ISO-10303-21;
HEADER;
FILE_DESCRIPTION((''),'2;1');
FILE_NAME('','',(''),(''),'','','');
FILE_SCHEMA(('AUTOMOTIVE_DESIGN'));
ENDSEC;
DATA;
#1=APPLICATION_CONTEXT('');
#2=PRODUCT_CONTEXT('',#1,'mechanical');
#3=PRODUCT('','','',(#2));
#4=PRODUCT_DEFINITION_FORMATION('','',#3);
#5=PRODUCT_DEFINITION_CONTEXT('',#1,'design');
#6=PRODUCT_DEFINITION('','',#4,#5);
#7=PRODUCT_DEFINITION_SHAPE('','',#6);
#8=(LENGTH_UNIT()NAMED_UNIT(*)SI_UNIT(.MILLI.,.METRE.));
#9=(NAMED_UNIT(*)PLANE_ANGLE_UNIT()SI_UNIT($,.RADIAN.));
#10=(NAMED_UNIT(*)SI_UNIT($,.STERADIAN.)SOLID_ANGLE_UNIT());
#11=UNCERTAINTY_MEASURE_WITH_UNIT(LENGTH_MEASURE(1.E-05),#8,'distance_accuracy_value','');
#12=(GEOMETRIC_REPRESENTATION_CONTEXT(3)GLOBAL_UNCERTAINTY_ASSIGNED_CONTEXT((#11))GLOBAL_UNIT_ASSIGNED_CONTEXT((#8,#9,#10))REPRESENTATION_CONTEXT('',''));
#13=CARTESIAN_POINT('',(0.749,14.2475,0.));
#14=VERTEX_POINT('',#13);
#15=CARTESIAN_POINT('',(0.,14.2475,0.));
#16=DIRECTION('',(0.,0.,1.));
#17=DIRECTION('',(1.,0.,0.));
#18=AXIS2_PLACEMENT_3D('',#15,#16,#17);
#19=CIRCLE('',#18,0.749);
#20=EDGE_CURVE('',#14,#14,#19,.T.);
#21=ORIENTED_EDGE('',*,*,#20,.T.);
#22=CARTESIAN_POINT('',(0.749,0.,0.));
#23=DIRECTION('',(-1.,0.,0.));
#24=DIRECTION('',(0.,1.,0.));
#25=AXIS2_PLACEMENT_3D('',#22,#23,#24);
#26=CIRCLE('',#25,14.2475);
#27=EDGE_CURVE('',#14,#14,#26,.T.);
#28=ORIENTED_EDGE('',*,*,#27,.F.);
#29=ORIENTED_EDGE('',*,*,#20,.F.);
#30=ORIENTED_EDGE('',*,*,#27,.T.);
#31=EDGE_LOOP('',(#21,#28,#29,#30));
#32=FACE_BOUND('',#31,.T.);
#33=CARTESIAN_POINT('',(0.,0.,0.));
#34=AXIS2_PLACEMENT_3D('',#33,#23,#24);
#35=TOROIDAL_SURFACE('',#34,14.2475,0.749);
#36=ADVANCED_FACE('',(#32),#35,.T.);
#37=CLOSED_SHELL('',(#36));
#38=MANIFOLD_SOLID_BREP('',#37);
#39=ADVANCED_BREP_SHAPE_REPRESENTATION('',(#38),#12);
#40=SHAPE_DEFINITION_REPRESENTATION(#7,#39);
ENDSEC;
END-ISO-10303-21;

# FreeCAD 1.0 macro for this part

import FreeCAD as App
import Part
import Sketcher
from FreeCAD import Vector
Q = App.Units.Quantity

doc = App.newDocument("Part")
body = doc.addObject("PartDesign::Body", "Body")

sketch1 = body.newObject("Sketcher::SketchObject", "Sketch")
sketch1.AttachmentSupport = (doc.getObject("XY_Plane"), [""])
sketch1.MapMode = "FlatFace"
sketch1.addGeometry(Part.Circle(Vector(0, 14.2, 0), Vector(0, 0, 1), 0.7), False)
sketch1.addConstraint(Sketcher.Constraint("PointOnObject", 0, 3, -2))
sketch1.addConstraint(Sketcher.Constraint("Diameter", 0, Q("1.498 mm")))
sketch1.addConstraint(Sketcher.Constraint("DistanceY", -1, 1, 0, 3, Q("14.2475 mm")))
revolution = body.newObject("PartDesign::Revolution", "Revolution")
revolution.Profile = sketch1
revolution.ReferenceAxis = (sketch1, ["H_Axis"])
revolution.Angle = 360

doc.recompute()
